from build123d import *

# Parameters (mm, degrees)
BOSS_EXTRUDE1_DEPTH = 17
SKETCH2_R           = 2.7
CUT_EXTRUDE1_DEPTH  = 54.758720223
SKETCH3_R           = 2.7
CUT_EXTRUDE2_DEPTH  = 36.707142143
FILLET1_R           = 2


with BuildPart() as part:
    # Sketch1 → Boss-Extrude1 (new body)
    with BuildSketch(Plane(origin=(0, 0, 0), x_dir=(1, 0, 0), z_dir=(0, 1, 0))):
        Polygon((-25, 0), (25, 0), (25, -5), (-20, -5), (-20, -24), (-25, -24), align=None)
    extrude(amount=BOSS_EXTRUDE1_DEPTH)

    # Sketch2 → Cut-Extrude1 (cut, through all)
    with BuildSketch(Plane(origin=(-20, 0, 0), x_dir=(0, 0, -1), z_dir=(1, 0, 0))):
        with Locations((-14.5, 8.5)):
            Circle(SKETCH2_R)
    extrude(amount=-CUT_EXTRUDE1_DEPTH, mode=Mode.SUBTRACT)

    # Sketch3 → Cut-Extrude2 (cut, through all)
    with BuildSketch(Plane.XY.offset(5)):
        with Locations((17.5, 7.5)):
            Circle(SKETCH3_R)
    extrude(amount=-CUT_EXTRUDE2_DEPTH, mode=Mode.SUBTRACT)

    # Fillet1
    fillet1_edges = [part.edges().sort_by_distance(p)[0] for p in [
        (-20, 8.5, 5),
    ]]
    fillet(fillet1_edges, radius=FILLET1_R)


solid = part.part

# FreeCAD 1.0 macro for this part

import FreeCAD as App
import Part
import Sketcher


def edges_at(feature, points):
    """Names of the edges that pass closest to the given points."""
    edges = feature.Shape.Edges
    near = lambda p: min(range(len(edges)), key=lambda i: edges[i].distToShape(Part.Vertex(*p))[0])
    return sorted({f"Edge{near(p) + 1}" for p in points})


def add_polygon(sketch, points):
    """Adds a closed chain of lines whose ends are joined by coincident constraints."""
    first, n = sketch.GeometryCount, len(points)
    for a, b in zip(points, points[1:] + points[:1]):
        sketch.addGeometry(Part.LineSegment(App.Vector(*a, 0), App.Vector(*b, 0)), False)
    for i in range(n):
        sketch.addConstraint(Sketcher.Constraint("Coincident", first + i, 2, first + (i + 1) % n, 1))

doc = App.newDocument("Part")
body = doc.addObject("PartDesign::Body", "Body")

sketch1 = body.newObject("Sketcher::SketchObject", "Sketch")
sketch1.AttachmentSupport = (doc.getObject("XZ_Plane"), [""])
sketch1.MapMode = "FlatFace"
add_polygon(sketch1, [(25, 0), (-25, 0), (-25, 24), (-20, 24), (-20, 5), (25, 5)])
sketch1.addConstraint([
    Sketcher.Constraint("Horizontal", 0),
    Sketcher.Constraint("Vertical", 1),
    Sketcher.Constraint("Horizontal", 2),
    Sketcher.Constraint("Vertical", 3),
    Sketcher.Constraint("Horizontal", 4),
    Sketcher.Constraint("Vertical", 5),
    Sketcher.Constraint("Symmetric", 0, 2, 5, 2, -1, 1),
    Sketcher.Constraint("Equal", 2, 5),
    Sketcher.Constraint("DistanceX", 0, 2, 0, 1, 50.0),
    Sketcher.Constraint("DistanceX", 2, 1, 2, 2, 5.0),
    Sketcher.Constraint("DistanceY", 1, 1, 1, 2, 24.0),
])
pad1 = body.newObject("PartDesign::Pad", "Pad")
pad1.Profile = sketch1
pad1.Length = 17
pad1.Reversed = True

sketch2 = body.newObject("Sketcher::SketchObject", "Sketch001")
sketch2.AttachmentSupport = (doc.getObject("YZ_Plane"), [""])
sketch2.MapMode = "FlatFace"
sketch2.AttachmentOffset = App.Placement(App.Vector(0, 0, -20), App.Rotation())
sketch2.addGeometry(Part.Circle(App.Vector(8.5, 14.5, 0), App.Vector(0, 0, 1), 2.7), False)
sketch2.addConstraint([
    Sketcher.Constraint("Diameter", 0, 5.4),
    Sketcher.Constraint("DistanceX", -1, 1, 0, 3, 8.5),
    Sketcher.Constraint("DistanceY", -1, 1, 0, 3, 14.5),
])
pocket1 = body.newObject("PartDesign::Pocket", "Pocket")
pocket1.Profile = sketch2
pocket1.Type = "ThroughAll"

sketch3 = body.newObject("Sketcher::SketchObject", "Sketch002")
sketch3.AttachmentSupport = (doc.getObject("XY_Plane"), [""])
sketch3.MapMode = "FlatFace"
sketch3.AttachmentOffset = App.Placement(App.Vector(0, 0, 5), App.Rotation())
sketch3.addGeometry(Part.Circle(App.Vector(17.5, 7.5, 0), App.Vector(0, 0, 1), 2.7), False)
sketch3.addConstraint([
    Sketcher.Constraint("Diameter", 0, 5.4),
    Sketcher.Constraint("DistanceX", -1, 1, 0, 3, 17.5),
    Sketcher.Constraint("DistanceY", -1, 1, 0, 3, 7.5),
])
pocket2 = body.newObject("PartDesign::Pocket", "Pocket001")
pocket2.Profile = sketch3
pocket2.Type = "ThroughAll"
doc.recompute()

fillet = body.newObject("PartDesign::Fillet", "Fillet")
fillet.Base = (pocket2, edges_at(pocket2, [(-20, 8.5, 5)]))
fillet.Radius = 2

doc.recompute()
